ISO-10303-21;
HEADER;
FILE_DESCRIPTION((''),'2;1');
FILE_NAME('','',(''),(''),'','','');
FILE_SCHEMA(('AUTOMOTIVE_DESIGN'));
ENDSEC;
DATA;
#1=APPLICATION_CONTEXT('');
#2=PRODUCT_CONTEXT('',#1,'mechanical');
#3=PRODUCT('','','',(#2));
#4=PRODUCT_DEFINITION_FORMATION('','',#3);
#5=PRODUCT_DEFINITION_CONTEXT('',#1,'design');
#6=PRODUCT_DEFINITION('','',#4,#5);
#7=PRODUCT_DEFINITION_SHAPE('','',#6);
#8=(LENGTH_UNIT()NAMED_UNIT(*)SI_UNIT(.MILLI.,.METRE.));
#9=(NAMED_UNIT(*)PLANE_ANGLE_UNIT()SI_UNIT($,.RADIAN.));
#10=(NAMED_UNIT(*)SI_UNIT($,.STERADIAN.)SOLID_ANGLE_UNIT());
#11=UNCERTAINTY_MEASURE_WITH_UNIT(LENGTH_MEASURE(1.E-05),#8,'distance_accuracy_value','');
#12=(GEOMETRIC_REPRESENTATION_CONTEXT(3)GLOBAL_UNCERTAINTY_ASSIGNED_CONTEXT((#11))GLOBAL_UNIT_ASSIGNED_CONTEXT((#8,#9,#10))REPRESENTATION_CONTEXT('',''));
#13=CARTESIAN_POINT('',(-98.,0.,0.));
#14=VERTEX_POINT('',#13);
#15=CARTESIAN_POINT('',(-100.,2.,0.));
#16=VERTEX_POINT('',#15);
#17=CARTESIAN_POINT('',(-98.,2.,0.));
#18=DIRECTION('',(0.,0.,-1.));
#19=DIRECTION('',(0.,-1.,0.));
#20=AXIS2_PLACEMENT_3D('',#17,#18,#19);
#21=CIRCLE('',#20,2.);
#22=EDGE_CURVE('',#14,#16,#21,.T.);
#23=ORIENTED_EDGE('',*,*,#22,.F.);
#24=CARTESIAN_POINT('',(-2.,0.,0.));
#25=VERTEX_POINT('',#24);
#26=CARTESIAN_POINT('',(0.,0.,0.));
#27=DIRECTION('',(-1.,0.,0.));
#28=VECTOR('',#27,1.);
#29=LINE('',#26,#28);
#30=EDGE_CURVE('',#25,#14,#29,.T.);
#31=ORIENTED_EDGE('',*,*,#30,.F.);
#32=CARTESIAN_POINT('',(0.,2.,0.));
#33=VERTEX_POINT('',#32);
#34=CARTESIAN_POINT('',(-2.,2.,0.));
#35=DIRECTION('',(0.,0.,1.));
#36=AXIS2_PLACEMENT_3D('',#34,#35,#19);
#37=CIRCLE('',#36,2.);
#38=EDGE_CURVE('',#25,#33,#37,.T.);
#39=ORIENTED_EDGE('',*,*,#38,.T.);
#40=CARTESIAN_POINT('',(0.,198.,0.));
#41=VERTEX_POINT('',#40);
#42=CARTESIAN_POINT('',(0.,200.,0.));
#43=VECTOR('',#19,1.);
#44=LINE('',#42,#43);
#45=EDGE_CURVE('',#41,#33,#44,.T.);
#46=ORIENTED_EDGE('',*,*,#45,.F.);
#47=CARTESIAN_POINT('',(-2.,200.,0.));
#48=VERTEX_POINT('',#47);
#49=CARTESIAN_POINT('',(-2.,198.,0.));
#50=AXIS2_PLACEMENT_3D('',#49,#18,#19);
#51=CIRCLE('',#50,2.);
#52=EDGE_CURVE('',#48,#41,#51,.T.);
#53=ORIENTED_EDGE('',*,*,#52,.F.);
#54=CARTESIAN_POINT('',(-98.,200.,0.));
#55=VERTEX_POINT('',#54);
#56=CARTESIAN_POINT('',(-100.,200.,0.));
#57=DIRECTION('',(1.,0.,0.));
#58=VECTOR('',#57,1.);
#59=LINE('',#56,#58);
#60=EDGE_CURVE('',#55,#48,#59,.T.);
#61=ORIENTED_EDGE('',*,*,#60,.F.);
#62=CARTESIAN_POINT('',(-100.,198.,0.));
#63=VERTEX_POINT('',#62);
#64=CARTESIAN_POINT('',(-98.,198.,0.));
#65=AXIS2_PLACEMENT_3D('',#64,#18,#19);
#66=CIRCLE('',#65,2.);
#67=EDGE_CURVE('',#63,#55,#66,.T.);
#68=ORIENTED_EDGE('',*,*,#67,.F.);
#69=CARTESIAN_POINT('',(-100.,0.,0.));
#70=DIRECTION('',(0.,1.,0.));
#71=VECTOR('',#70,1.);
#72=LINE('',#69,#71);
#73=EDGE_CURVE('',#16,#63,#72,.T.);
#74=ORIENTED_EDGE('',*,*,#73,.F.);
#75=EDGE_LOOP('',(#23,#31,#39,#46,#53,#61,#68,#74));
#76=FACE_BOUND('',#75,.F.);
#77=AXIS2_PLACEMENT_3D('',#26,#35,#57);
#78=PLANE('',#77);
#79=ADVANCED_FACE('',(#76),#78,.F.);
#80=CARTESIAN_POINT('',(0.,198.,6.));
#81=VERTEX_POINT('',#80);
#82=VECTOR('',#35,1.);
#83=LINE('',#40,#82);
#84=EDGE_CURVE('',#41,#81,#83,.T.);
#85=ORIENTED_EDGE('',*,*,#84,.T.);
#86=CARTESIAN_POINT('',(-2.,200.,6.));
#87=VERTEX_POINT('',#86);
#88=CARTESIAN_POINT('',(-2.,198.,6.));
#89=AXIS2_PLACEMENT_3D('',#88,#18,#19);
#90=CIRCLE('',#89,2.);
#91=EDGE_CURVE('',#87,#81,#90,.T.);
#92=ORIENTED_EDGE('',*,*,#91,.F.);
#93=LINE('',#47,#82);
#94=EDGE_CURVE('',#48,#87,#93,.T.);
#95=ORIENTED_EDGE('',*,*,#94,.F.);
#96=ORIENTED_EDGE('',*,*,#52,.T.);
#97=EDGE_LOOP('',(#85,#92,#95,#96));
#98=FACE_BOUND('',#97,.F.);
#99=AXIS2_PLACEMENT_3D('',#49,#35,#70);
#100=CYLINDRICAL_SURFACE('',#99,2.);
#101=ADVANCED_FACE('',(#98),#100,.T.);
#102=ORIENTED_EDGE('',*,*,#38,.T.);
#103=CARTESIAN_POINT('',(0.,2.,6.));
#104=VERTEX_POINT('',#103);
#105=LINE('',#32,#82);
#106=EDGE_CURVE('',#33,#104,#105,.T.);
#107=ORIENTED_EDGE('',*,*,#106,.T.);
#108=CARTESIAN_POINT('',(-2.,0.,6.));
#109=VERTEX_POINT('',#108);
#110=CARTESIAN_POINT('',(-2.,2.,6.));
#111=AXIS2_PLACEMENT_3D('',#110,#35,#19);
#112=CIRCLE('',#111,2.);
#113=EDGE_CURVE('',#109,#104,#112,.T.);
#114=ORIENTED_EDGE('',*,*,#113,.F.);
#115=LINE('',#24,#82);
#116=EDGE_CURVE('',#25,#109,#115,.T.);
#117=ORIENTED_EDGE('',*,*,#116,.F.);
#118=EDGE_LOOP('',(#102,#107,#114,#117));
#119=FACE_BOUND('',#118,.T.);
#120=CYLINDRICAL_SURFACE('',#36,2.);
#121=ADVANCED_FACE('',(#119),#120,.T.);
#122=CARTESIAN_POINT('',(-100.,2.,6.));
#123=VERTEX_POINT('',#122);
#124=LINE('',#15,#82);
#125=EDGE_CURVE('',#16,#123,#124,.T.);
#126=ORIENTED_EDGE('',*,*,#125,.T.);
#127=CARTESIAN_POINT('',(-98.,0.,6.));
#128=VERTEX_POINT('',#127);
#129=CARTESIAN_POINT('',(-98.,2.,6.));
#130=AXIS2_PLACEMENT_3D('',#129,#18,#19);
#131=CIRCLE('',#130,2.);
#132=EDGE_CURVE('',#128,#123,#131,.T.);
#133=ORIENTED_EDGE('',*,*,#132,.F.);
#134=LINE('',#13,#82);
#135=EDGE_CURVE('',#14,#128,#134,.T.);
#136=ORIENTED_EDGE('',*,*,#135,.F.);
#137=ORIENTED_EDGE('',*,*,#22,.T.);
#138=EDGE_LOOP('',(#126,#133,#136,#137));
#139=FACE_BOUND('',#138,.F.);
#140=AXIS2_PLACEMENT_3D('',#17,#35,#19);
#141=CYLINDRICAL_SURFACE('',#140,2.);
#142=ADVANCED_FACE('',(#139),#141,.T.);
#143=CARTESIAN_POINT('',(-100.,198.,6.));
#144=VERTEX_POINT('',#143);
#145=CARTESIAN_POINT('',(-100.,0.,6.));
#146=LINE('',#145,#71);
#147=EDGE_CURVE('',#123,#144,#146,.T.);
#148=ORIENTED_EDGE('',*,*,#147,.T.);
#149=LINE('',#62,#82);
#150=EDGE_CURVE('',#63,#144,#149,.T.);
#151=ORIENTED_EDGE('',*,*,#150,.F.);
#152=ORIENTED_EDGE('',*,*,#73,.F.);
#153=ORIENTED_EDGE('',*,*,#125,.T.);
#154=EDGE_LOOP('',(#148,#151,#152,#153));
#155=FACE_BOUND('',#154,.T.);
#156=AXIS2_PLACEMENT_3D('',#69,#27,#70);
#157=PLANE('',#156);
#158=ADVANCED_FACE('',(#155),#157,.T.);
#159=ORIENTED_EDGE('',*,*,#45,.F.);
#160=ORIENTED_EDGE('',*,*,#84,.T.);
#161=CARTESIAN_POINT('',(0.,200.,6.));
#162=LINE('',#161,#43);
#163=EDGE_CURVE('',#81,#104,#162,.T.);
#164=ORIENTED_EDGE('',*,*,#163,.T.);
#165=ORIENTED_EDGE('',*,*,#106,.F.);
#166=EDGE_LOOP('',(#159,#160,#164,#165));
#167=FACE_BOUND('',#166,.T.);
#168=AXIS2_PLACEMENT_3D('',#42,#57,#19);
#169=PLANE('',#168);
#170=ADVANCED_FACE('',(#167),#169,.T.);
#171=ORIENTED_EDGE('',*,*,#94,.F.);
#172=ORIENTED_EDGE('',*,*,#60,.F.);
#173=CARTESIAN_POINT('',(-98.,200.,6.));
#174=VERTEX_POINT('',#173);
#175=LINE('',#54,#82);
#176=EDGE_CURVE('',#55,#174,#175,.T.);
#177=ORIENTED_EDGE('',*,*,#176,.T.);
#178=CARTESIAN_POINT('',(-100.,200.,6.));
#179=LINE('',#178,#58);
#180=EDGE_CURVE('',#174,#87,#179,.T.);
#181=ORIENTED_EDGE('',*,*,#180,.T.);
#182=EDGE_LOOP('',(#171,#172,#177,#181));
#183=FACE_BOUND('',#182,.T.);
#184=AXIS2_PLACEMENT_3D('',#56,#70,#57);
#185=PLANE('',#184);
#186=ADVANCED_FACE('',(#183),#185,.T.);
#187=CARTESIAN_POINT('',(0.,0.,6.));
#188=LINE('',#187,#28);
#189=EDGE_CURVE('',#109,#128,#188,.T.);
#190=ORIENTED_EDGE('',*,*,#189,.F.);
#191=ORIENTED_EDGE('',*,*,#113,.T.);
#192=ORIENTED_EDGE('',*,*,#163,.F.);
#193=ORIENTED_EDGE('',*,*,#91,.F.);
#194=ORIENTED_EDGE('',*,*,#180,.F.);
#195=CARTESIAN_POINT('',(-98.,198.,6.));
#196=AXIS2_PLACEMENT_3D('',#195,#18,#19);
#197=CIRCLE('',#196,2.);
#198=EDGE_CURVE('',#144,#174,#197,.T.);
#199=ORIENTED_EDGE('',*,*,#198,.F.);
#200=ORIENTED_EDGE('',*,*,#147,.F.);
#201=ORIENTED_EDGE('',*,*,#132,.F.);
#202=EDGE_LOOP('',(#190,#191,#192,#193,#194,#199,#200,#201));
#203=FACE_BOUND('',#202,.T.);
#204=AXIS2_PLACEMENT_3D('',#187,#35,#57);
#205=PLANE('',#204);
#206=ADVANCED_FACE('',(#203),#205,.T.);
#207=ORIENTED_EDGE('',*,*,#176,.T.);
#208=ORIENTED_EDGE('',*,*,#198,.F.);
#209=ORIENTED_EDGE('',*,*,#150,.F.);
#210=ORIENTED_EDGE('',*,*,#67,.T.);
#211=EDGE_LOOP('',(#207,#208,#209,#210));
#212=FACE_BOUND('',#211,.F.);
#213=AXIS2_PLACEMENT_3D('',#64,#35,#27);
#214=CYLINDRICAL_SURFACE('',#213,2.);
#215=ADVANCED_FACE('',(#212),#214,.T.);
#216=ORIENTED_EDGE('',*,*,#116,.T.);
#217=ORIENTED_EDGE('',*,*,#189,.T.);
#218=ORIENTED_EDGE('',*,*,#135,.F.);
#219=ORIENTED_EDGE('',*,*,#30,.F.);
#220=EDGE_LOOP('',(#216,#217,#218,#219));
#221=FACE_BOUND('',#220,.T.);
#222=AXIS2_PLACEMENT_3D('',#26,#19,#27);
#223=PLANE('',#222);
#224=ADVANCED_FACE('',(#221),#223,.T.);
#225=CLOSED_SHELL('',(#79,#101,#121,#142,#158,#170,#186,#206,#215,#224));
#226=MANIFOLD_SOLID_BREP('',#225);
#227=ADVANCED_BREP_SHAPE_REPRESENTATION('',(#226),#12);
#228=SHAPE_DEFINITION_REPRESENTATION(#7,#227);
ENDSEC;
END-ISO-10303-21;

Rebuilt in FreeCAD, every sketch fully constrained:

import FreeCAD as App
import Part
import Sketcher
from FreeCAD import Vector


def edges_at(feature, points):
    """Names of the edges that pass closest to the given points."""
    edges = feature.Shape.Edges
    near = lambda p: min(range(len(edges)), key=lambda i: edges[i].distToShape(Part.Vertex(*p))[0])
    return sorted({f"Edge{near(p) + 1}" for p in points})


def add_polygon(sketch, points):
    """Adds a closed chain of lines whose ends are joined by coincident constraints."""
    first, n = sketch.GeometryCount, len(points)
    for a, b in zip(points, points[1:] + points[:1]):
        sketch.addGeometry(Part.LineSegment(App.Vector(*a, 0), App.Vector(*b, 0)), False)
    for i in range(n):
        sketch.addConstraint(Sketcher.Constraint("Coincident", first + i, 2, first + (i + 1) % n, 1))

doc = App.newDocument("Part")
body = doc.addObject("PartDesign::Body", "Body")

# Sketch on XY plane
sketch1 = body.newObject("Sketcher::SketchObject", "Sketch")
sketch1.AttachmentSupport = (doc.getObject("XY_Plane"), [""])
sketch1.MapMode = "FlatFace"
add_polygon(sketch1, [(-100, 0), (0, 0), (0, 200), (-100, 200)])  # lines 0-3
sketch1.addConstraint(Sketcher.Constraint("Horizontal", 0))
sketch1.addConstraint(Sketcher.Constraint("Vertical", 1))
sketch1.addConstraint(Sketcher.Constraint("Horizontal", 2))
sketch1.addConstraint(Sketcher.Constraint("Vertical", 3))
sketch1.addConstraint(Sketcher.Constraint("Coincident", 0, 2, -1, 1))
sketch1.addConstraint(Sketcher.Constraint("DistanceX", 0, 1, 0, 2, 100.0))
sketch1.addConstraint(Sketcher.Constraint("DistanceY", 1, 1, 1, 2, 200.0))
pad1 = body.newObject("PartDesign::Pad", "Pad")
pad1.Profile = sketch1
pad1.Length = 6
doc.recompute()

fillet = body.newObject("PartDesign::Fillet", "Fillet")
fillet.Base = (pad1, edges_at(pad1, [
    (0, 0, 3),
    (-100, 0, 3),
    (-100, 200, 3),
    (0, 200, 3),
]))
fillet.Radius = 2

doc.recompute()
